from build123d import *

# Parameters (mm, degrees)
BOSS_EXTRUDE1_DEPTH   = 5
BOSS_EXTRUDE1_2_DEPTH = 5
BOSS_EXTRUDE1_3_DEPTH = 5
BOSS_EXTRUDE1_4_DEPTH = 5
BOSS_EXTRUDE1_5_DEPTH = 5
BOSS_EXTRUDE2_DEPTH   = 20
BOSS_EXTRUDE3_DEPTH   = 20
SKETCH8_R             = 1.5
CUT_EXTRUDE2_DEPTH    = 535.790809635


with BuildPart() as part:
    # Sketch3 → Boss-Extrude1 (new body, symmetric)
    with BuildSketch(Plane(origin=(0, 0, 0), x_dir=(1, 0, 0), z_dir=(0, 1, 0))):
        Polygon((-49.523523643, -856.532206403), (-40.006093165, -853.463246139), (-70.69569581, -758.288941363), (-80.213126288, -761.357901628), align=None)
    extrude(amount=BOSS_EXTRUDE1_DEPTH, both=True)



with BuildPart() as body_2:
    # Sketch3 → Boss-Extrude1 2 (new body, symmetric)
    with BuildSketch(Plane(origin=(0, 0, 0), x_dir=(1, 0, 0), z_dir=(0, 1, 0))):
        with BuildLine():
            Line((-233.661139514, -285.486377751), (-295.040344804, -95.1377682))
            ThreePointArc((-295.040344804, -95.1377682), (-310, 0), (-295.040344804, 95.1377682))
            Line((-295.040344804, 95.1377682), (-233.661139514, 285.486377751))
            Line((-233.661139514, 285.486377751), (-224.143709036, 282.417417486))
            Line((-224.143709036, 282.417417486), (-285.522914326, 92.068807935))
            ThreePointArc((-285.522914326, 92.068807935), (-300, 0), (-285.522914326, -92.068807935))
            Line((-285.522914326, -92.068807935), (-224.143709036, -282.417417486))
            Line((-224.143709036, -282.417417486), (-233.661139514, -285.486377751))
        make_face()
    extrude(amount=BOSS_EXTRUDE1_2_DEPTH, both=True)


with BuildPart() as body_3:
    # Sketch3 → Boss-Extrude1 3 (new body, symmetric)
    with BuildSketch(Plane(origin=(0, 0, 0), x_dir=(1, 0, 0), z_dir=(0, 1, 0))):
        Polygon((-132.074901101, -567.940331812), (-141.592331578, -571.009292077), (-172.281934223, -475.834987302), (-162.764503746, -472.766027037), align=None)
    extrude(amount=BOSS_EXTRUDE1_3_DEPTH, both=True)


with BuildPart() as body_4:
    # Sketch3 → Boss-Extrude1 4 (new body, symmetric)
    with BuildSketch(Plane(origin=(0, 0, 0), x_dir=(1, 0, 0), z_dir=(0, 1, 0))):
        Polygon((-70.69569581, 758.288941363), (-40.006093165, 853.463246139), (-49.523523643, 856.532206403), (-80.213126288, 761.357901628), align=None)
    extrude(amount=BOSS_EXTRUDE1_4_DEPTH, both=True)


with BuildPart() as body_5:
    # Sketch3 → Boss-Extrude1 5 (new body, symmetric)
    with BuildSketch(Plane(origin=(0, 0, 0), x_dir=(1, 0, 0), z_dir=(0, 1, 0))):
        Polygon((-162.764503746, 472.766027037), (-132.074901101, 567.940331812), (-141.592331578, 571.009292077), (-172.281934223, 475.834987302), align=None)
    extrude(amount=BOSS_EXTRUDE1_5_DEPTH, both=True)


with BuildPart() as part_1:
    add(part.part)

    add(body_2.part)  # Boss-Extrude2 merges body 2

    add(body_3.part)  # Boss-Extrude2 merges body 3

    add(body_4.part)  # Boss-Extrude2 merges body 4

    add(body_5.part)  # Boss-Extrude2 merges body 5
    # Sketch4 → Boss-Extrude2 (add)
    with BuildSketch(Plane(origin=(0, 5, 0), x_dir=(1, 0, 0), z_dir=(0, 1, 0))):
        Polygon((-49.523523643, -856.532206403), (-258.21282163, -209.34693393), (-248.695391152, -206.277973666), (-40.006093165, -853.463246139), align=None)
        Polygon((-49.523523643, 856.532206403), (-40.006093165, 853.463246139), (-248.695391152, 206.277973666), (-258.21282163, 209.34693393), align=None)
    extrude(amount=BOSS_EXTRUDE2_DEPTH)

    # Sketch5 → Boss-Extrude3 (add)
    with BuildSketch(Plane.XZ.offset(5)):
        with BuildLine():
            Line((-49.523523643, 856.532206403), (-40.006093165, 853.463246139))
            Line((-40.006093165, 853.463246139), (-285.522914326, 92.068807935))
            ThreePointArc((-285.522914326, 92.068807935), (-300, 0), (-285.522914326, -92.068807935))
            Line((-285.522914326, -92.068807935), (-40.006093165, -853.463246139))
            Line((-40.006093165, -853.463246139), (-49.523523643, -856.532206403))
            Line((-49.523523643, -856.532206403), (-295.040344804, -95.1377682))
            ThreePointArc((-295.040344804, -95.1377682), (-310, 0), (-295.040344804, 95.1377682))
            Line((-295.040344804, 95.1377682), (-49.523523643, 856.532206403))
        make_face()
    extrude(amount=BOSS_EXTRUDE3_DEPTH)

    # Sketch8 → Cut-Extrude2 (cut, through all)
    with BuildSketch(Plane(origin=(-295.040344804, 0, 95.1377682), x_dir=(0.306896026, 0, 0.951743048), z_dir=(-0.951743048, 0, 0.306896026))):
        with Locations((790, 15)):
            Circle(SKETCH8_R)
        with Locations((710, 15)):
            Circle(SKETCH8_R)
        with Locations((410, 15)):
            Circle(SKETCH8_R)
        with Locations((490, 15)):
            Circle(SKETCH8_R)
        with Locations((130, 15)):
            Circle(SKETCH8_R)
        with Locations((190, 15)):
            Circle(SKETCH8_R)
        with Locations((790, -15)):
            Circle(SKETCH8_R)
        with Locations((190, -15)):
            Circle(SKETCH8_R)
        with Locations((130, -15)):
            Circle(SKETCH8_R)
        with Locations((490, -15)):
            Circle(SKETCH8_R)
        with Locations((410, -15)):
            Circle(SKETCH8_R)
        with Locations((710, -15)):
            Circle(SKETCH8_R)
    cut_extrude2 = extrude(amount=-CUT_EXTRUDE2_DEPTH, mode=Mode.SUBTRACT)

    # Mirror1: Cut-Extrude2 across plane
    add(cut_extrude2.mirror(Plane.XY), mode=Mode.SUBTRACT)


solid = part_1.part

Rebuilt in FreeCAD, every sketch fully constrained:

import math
import FreeCAD as App
import Part
import Sketcher
from FreeCAD import Vector
Q = App.Units.Quantity


def add_polygon(sketch, points):
    """Adds a closed chain of lines whose ends are joined by coincident constraints."""
    first, n = sketch.GeometryCount, len(points)
    for a, b in zip(points, points[1:] + points[:1]):
        sketch.addGeometry(Part.LineSegment(App.Vector(*a, 0), App.Vector(*b, 0)), False)
    for i in range(n):
        sketch.addConstraint(Sketcher.Constraint("Coincident", first + i, 2, first + (i + 1) % n, 1))

doc = App.newDocument("Part")
params = doc.addObject("Spreadsheet::Sheet", "Params")
for row, (alias, value) in enumerate([
    ("sketch1_length", "10 mm"),
    ("sketch1_length2", "100 mm"),
    ("pad1_length", "10 mm"),
    ("sketch2_radius", "300 mm"),
    ("sketch2_radius2", "310 mm"),
    ("sketch2_length", "200 mm"),
    ("pad2_length", "10 mm"),
    ("sketch3_length", "10 mm"),
    ("sketch3_length2", "100 mm"),
    ("pad3_length", "10 mm"),
    ("sketch4_length", "100 mm"),
    ("sketch4_length2", "10 mm"),
    ("pad4_length", "10 mm"),
    ("sketch5_length", "100 mm"),
    ("sketch5_length2", "10 mm"),
    ("pad5_length", "10 mm"),
    ("sketch6_length", "680 mm"),
    ("sketch6_length2", "10 mm"),
    ("pad6_length", "20 mm"),
    ("sketch7_radius", "310 mm"),
    ("sketch7_radius2", "300 mm"),
    ("sketch7_length", "800 mm"),
    ("pad7_length", "20 mm"),
    ("sketch8_diameter", "3 mm"),
], start=1):
    params.set(f"A{row}", alias)
    params.set(f"B{row}", "=" + value)
    params.setAlias(f"B{row}", alias)

body = doc.addObject("PartDesign::Body", "Body")

# Sketch on XZ plane
sketch1 = body.newObject("Sketcher::SketchObject", "Sketch")
sketch1.AttachmentSupport = (doc.getObject("XZ_Plane"), [""])
sketch1.MapMode = "FlatFace"
add_polygon(sketch1, [(-50, 857), (-40, 853), (-71, 758), (-80, 761)])  # lines 0-3
sketch1.addConstraint([
    Sketcher.Constraint("Perpendicular", 0, 1),
    Sketcher.Constraint("Perpendicular", 1, 2),
    Sketcher.Constraint("Perpendicular", 2, 3),
    Sketcher.Constraint("Distance", 0, Q("10 mm")),
    Sketcher.Constraint("Distance", 1, Q("100 mm")),
    Sketcher.Constraint("DistanceY", -1, 1, 2, 2, Q("761.357902 mm")),
    Sketcher.Constraint("DistanceY", -1, 1, 1, 2, Q("758.288941 mm")),
    Sketcher.Constraint("DistanceX", 0, 2, -1, 1, Q("40.006093 mm")),
])
sketch1.setExpression("Constraints[7]", "Params.sketch1_length")
sketch1.setExpression("Constraints[8]", "Params.sketch1_length2")
pad1 = body.newObject("PartDesign::Pad", "Pad")
pad1.Profile = sketch1
pad1.setExpression("Length", "Params.pad1_length")
pad1.Midplane = True
body2 = doc.addObject("PartDesign::Body", "Body001")

# Sketch on XZ plane
sketch2 = body2.newObject("Sketcher::SketchObject", "Sketch001")
sketch2.AttachmentSupport = (doc.getObject("XZ_Plane001"), [""])
sketch2.MapMode = "FlatFace"
sketch2.addGeometry([
    Part.LineSegment(Vector(-295, 95, 0), Vector(-234, 285, 0)),  # 0
    Part.LineSegment(Vector(-234, 285, 0), Vector(-224, 282, 0)),  # 1
    Part.LineSegment(Vector(-224, 282, 0), Vector(-286, 92, 0)),  # 2
    Part.ArcOfCircle(Part.Circle(Vector(0, 0, 0), Vector(0, 0, 1), 300), math.radians(162), math.radians(198)),  # 3
    Part.LineSegment(Vector(-286, -92, 0), Vector(-224, -282, 0)),  # 4
    Part.LineSegment(Vector(-224, -282, 0), Vector(-234, -285, 0)),  # 5
    Part.LineSegment(Vector(-234, -285, 0), Vector(-295, -95, 0)),  # 6
    Part.ArcOfCircle(Part.Circle(Vector(0, 0, 0), Vector(0, 0, 1), 310), math.radians(162), math.radians(198)),  # 7
], False)
sketch2.addConstraint([
    Sketcher.Constraint("Coincident", 0, 2, 1, 1),
    Sketcher.Constraint("Coincident", 1, 2, 2, 1),
    Sketcher.Constraint("Tangent", 2, 2, 3, 1),
    Sketcher.Constraint("Tangent", 3, 2, 4, 1),
    Sketcher.Constraint("Coincident", 4, 2, 5, 1),
    Sketcher.Constraint("Coincident", 5, 2, 6, 1),
    Sketcher.Constraint("Tangent", 6, 2, 7, 2),
    Sketcher.Constraint("Tangent", 7, 1, 0, 1),
    Sketcher.Constraint("Coincident", 3, 3, -1, 1),
    Sketcher.Constraint("Coincident", 7, 3, -1, 1),
    Sketcher.Constraint("Symmetric", 1, 2, 4, 2, -1),
    Sketcher.Constraint("Symmetric", 0, 2, 5, 2, -1),
    Sketcher.Constraint("Perpendicular", 0, 1),
    Sketcher.Constraint("Perpendicular", 1, 2),
    Sketcher.Constraint("Radius", 3, Q("300 mm")),
    Sketcher.Constraint("Radius", 7, Q("310 mm")),
    Sketcher.Constraint("Distance", 0, Q("200 mm")),
    Sketcher.Constraint("DistanceX", 0, 2, -1, 1, Q("233.66114 mm")),
])
sketch2.setExpression("Constraints[14]", "Params.sketch2_radius")
sketch2.setExpression("Constraints[15]", "Params.sketch2_radius2")
sketch2.setExpression("Constraints[16]", "Params.sketch2_length")
pad2 = body2.newObject("PartDesign::Pad", "Pad001")
pad2.Profile = sketch2
pad2.setExpression("Length", "Params.pad2_length")
pad2.Midplane = True
body3 = doc.addObject("PartDesign::Body", "Body002")

# Sketch on XZ plane
sketch3 = body3.newObject("Sketcher::SketchObject", "Sketch002")
sketch3.AttachmentSupport = (doc.getObject("XZ_Plane002"), [""])
sketch3.MapMode = "FlatFace"
add_polygon(sketch3, [(-142, 571), (-132, 568), (-163, 473), (-172, 476)])  # lines 0-3
sketch3.addConstraint([
    Sketcher.Constraint("Perpendicular", 0, 1),
    Sketcher.Constraint("Perpendicular", 1, 2),
    Sketcher.Constraint("Perpendicular", 2, 3),
    Sketcher.Constraint("Distance", 0, Q("10 mm")),
    Sketcher.Constraint("Distance", 1, Q("100 mm")),
    Sketcher.Constraint("DistanceX", 0, 2, -1, 1, Q("132.074901 mm")),
    Sketcher.Constraint("DistanceY", -1, 1, 0, 2, Q("567.940332 mm")),
    Sketcher.Constraint("DistanceX", 3, 2, -1, 1, Q("141.592332 mm")),
])
sketch3.setExpression("Constraints[7]", "Params.sketch3_length")
sketch3.setExpression("Constraints[8]", "Params.sketch3_length2")
pad3 = body3.newObject("PartDesign::Pad", "Pad002")
pad3.Profile = sketch3
pad3.setExpression("Length", "Params.pad3_length")
pad3.Midplane = True
body4 = doc.addObject("PartDesign::Body", "Body003")

# Sketch on XZ plane
sketch4 = body4.newObject("Sketcher::SketchObject", "Sketch003")
sketch4.AttachmentSupport = (doc.getObject("XZ_Plane003"), [""])
sketch4.MapMode = "FlatFace"
add_polygon(sketch4, [(-71, -758), (-40, -853), (-50, -857), (-80, -761)])  # lines 0-3
sketch4.addConstraint([
    Sketcher.Constraint("Perpendicular", 0, 1),
    Sketcher.Constraint("Perpendicular", 1, 2),
    Sketcher.Constraint("Perpendicular", 2, 3),
    Sketcher.Constraint("Distance", 0, Q("100 mm")),
    Sketcher.Constraint("Distance", 1, Q("10 mm")),
    Sketcher.Constraint("DistanceY", 2, 2, -1, 1, Q("761.357902 mm")),
    Sketcher.Constraint("DistanceY", 3, 2, -1, 1, Q("758.288941 mm")),
    Sketcher.Constraint("DistanceX", 0, 2, -1, 1, Q("40.006093 mm")),
])
sketch4.setExpression("Constraints[7]", "Params.sketch4_length")
sketch4.setExpression("Constraints[8]", "Params.sketch4_length2")
pad4 = body4.newObject("PartDesign::Pad", "Pad003")
pad4.Profile = sketch4
pad4.setExpression("Length", "Params.pad4_length")
pad4.Midplane = True
body5 = doc.addObject("PartDesign::Body", "Body004")

# Sketch on XZ plane
sketch5 = body5.newObject("Sketcher::SketchObject", "Sketch004")
sketch5.AttachmentSupport = (doc.getObject("XZ_Plane004"), [""])
sketch5.MapMode = "FlatFace"
add_polygon(sketch5, [(-163, -473), (-132, -568), (-142, -571), (-172, -476)])  # lines 0-3
sketch5.addConstraint([
    Sketcher.Constraint("Perpendicular", 0, 1),
    Sketcher.Constraint("Perpendicular", 1, 2),
    Sketcher.Constraint("Perpendicular", 2, 3),
    Sketcher.Constraint("Distance", 0, Q("100 mm")),
    Sketcher.Constraint("Distance", 1, Q("10 mm")),
    Sketcher.Constraint("DistanceX", 0, 2, -1, 1, Q("132.074901 mm")),
    Sketcher.Constraint("DistanceY", 0, 2, -1, 1, Q("567.940332 mm")),
    Sketcher.Constraint("DistanceX", 1, 2, -1, 1, Q("141.592332 mm")),
])
sketch5.setExpression("Constraints[7]", "Params.sketch5_length")
sketch5.setExpression("Constraints[8]", "Params.sketch5_length2")
pad5 = body5.newObject("PartDesign::Pad", "Pad004")
pad5.Profile = sketch5
pad5.setExpression("Length", "Params.pad5_length")
pad5.Midplane = True
body.AllowCompound = True
doc.recompute()

boolean = body.newObject("PartDesign::Boolean", "Boolean")
boolean.Type = "Fuse"
boolean.addObjects([body2])
doc.recompute()

boolean2 = body.newObject("PartDesign::Boolean", "Boolean001")
boolean2.Type = "Fuse"
boolean2.addObjects([body3])
doc.recompute()

boolean3 = body.newObject("PartDesign::Boolean", "Boolean002")
boolean3.Type = "Fuse"
boolean3.addObjects([body4])
doc.recompute()

boolean4 = body.newObject("PartDesign::Boolean", "Boolean003")
boolean4.Type = "Fuse"
boolean4.addObjects([body5])

# Sketch on XZ plane
sketch6 = body.newObject("Sketcher::SketchObject", "Sketch005")
sketch6.AttachmentSupport = (doc.getObject("XZ_Plane"), [""])
sketch6.MapMode = "FlatFace"
sketch6.AttachmentOffset = App.Placement(Vector(0, 0, -5), App.Rotation())
add_polygon(sketch6, [(-258, 209), (-50, 857), (-40, 853), (-249, 206)])  # lines 0-3
add_polygon(sketch6, [(-40, -853), (-50, -857), (-258, -209), (-249, -206)])  # lines 4-7
sketch6.addConstraint([
    Sketcher.Constraint("Symmetric", 0, 2, 4, 2, -1),
    Sketcher.Constraint("Symmetric", 3, 2, 5, 2, -1),
    Sketcher.Constraint("Symmetric", 2, 2, 6, 2, -1),
    Sketcher.Constraint("Symmetric", 1, 2, 7, 2, -1),
    Sketcher.Constraint("Perpendicular", 0, 1),
    Sketcher.Constraint("Perpendicular", 1, 2),
    Sketcher.Constraint("Perpendicular", 2, 3),
    Sketcher.Constraint("Distance", 0, Q("680 mm")),
    Sketcher.Constraint("Distance", 1, Q("10 mm")),
    Sketcher.Constraint("DistanceX", 2, 2, -1, 1, Q("248.695391 mm")),
    Sketcher.Constraint("DistanceY", 1, 2, 0, 2, Q("3.06896 mm")),
    Sketcher.Constraint("DistanceY", 4, 2, 2, 2, Q("1062.81018 mm")),
])
sketch6.setExpression("Constraints[15]", "Params.sketch6_length")
sketch6.setExpression("Constraints[16]", "Params.sketch6_length2")
pad6 = body.newObject("PartDesign::Pad", "Pad005")
pad6.Profile = sketch6
pad6.setExpression("Length", "Params.pad6_length")
pad6.Reversed = True

# Sketch on XZ plane
sketch7 = body.newObject("Sketcher::SketchObject", "Sketch006")
sketch7.AttachmentSupport = (doc.getObject("XZ_Plane"), [""])
sketch7.MapMode = "FlatFace"
sketch7.AttachmentOffset = App.Placement(Vector(0, 0, 5), App.Rotation())
sketch7.addGeometry([
    Part.LineSegment(Vector(-40, 853, 0), Vector(-50, 857, 0)),  # 0
    Part.LineSegment(Vector(-50, 857, 0), Vector(-295, 95, 0)),  # 1
    Part.ArcOfCircle(Part.Circle(Vector(0, 0, 0), Vector(0, 0, 1), 310), math.radians(162), math.radians(198)),  # 2
    Part.LineSegment(Vector(-295, -95, 0), Vector(-50, -857, 0)),  # 3
    Part.LineSegment(Vector(-50, -857, 0), Vector(-40, -853, 0)),  # 4
    Part.LineSegment(Vector(-40, -853, 0), Vector(-286, -92, 0)),  # 5
    Part.ArcOfCircle(Part.Circle(Vector(0, 0, 0), Vector(0, 0, 1), 300), math.radians(162), math.radians(198)),  # 6
    Part.LineSegment(Vector(-286, 92, 0), Vector(-40, 853, 0)),  # 7
], False)
sketch7.addConstraint([
    Sketcher.Constraint("Coincident", 0, 2, 1, 1),
    Sketcher.Constraint("Tangent", 1, 2, 2, 1),
    Sketcher.Constraint("Tangent", 2, 2, 3, 1),
    Sketcher.Constraint("Coincident", 3, 2, 4, 1),
    Sketcher.Constraint("Coincident", 4, 2, 5, 1),
    Sketcher.Constraint("Tangent", 5, 2, 6, 2),
    Sketcher.Constraint("Tangent", 6, 1, 7, 1),
    Sketcher.Constraint("Coincident", 7, 2, 0, 1),
    Sketcher.Constraint("Coincident", 2, 3, -1, 1),
    Sketcher.Constraint("Coincident", 6, 3, -1, 1),
    Sketcher.Constraint("Symmetric", 0, 2, 3, 2, -1),
    Sketcher.Constraint("Symmetric", 4, 2, 7, 2, -1),
    Sketcher.Constraint("Perpendicular", 0, 1),
    Sketcher.Constraint("Perpendicular", 4, 5),
    Sketcher.Constraint("Radius", 2, Q("310 mm")),
    Sketcher.Constraint("Radius", 6, Q("300 mm")),
    Sketcher.Constraint("Distance", 1, Q("800 mm")),
    Sketcher.Constraint("DistanceY", -1, 1, 1, 2, Q("95.137768 mm")),
])
sketch7.setExpression("Constraints[14]", "Params.sketch7_radius")
sketch7.setExpression("Constraints[15]", "Params.sketch7_radius2")
sketch7.setExpression("Constraints[16]", "Params.sketch7_length")
pad7 = body.newObject("PartDesign::Pad", "Pad006")
pad7.Profile = sketch7
pad7.setExpression("Length", "Params.pad7_length")

# Sketch on an angled plane
sketch8 = body.newObject("Sketcher::SketchObject", "Sketch007")
sketch8.Placement = App.Placement(Vector(-295.040345, 0, 95.137768), App.Rotation(Vector(0.306896026, 0, 0.951743048), Vector(0, 1, 0), Vector(-0.951743048, 0, 0.306896026), "ZXY"))
sketch8.addGeometry([
    Part.Circle(Vector(790, 15, 0), Vector(0, 0, 1), 1.5),  # 0
    Part.Circle(Vector(710, 15, 0), Vector(0, 0, 1), 1.5),  # 1
    Part.Circle(Vector(410, 15, 0), Vector(0, 0, 1), 1.5),  # 2
    Part.Circle(Vector(490, 15, 0), Vector(0, 0, 1), 1.5),  # 3
    Part.Circle(Vector(130, 15, 0), Vector(0, 0, 1), 1.5),  # 4
    Part.Circle(Vector(190, 15, 0), Vector(0, 0, 1), 1.5),  # 5
    Part.Circle(Vector(790, -15, 0), Vector(0, 0, 1), 1.5),  # 6
    Part.Circle(Vector(190, -15, 0), Vector(0, 0, 1), 1.5),  # 7
    Part.Circle(Vector(130, -15, 0), Vector(0, 0, 1), 1.5),  # 8
    Part.Circle(Vector(490, -15, 0), Vector(0, 0, 1), 1.5),  # 9
    Part.Circle(Vector(410, -15, 0), Vector(0, 0, 1), 1.5),  # 10
    Part.Circle(Vector(710, -15, 0), Vector(0, 0, 1), 1.5),  # 11
], False)
sketch8.addConstraint([
    Sketcher.Constraint("Equal", 0, 1),
    Sketcher.Constraint("Equal", 1, 2),
    Sketcher.Constraint("Equal", 2, 3),
    Sketcher.Constraint("Equal", 3, 4),
    Sketcher.Constraint("Equal", 4, 5),
    Sketcher.Constraint("Equal", 5, 6),
    Sketcher.Constraint("Equal", 6, 7),
    Sketcher.Constraint("Equal", 7, 8),
    Sketcher.Constraint("Equal", 8, 9),
    Sketcher.Constraint("Equal", 9, 10),
    Sketcher.Constraint("Equal", 10, 11),
    Sketcher.Constraint("Symmetric", 0, 3, 6, 3, -1),
    Sketcher.Constraint("Symmetric", 5, 3, 7, 3, -1),
    Sketcher.Constraint("Symmetric", 4, 3, 8, 3, -1),
    Sketcher.Constraint("Symmetric", 3, 3, 9, 3, -1),
    Sketcher.Constraint("Symmetric", 2, 3, 10, 3, -1),
    Sketcher.Constraint("Symmetric", 1, 3, 11, 3, -1),
    Sketcher.Constraint("Horizontal", 0, 3, 1, 3),
    Sketcher.Constraint("Horizontal", 1, 3, 2, 3),
    Sketcher.Constraint("Horizontal", 2, 3, 3, 3),
    Sketcher.Constraint("Horizontal", 3, 3, 4, 3),
    Sketcher.Constraint("Horizontal", 4, 3, 5, 3),
    Sketcher.Constraint("Diameter", 0, Q("3 mm")),
    Sketcher.Constraint("DistanceX", -1, 1, 0, 3, Q("790 mm")),
    Sketcher.Constraint("DistanceY", -1, 1, 0, 3, Q("15 mm")),
    Sketcher.Constraint("DistanceX", -1, 1, 1, 3, Q("710 mm")),
    Sketcher.Constraint("DistanceX", -1, 1, 2, 3, Q("410 mm")),
    Sketcher.Constraint("DistanceX", -1, 1, 3, 3, Q("490 mm")),
    Sketcher.Constraint("DistanceX", -1, 1, 4, 3, Q("130 mm")),
    Sketcher.Constraint("DistanceX", -1, 1, 5, 3, Q("190 mm")),
])
sketch8.setExpression("Constraints[22]", "Params.sketch8_diameter")
pocket1 = body.newObject("PartDesign::Pocket", "Pocket")
pocket1.Profile = sketch8
pocket1.Type = "ThroughAll"
doc.recompute()

mirrored = body.newObject("PartDesign::Mirrored", "Mirrored")
mirrored.Originals = [pocket1]
mirrored.MirrorPlane = (doc.getObject("XY_Plane"), [""])
body.Tip = mirrored

doc.recompute()
